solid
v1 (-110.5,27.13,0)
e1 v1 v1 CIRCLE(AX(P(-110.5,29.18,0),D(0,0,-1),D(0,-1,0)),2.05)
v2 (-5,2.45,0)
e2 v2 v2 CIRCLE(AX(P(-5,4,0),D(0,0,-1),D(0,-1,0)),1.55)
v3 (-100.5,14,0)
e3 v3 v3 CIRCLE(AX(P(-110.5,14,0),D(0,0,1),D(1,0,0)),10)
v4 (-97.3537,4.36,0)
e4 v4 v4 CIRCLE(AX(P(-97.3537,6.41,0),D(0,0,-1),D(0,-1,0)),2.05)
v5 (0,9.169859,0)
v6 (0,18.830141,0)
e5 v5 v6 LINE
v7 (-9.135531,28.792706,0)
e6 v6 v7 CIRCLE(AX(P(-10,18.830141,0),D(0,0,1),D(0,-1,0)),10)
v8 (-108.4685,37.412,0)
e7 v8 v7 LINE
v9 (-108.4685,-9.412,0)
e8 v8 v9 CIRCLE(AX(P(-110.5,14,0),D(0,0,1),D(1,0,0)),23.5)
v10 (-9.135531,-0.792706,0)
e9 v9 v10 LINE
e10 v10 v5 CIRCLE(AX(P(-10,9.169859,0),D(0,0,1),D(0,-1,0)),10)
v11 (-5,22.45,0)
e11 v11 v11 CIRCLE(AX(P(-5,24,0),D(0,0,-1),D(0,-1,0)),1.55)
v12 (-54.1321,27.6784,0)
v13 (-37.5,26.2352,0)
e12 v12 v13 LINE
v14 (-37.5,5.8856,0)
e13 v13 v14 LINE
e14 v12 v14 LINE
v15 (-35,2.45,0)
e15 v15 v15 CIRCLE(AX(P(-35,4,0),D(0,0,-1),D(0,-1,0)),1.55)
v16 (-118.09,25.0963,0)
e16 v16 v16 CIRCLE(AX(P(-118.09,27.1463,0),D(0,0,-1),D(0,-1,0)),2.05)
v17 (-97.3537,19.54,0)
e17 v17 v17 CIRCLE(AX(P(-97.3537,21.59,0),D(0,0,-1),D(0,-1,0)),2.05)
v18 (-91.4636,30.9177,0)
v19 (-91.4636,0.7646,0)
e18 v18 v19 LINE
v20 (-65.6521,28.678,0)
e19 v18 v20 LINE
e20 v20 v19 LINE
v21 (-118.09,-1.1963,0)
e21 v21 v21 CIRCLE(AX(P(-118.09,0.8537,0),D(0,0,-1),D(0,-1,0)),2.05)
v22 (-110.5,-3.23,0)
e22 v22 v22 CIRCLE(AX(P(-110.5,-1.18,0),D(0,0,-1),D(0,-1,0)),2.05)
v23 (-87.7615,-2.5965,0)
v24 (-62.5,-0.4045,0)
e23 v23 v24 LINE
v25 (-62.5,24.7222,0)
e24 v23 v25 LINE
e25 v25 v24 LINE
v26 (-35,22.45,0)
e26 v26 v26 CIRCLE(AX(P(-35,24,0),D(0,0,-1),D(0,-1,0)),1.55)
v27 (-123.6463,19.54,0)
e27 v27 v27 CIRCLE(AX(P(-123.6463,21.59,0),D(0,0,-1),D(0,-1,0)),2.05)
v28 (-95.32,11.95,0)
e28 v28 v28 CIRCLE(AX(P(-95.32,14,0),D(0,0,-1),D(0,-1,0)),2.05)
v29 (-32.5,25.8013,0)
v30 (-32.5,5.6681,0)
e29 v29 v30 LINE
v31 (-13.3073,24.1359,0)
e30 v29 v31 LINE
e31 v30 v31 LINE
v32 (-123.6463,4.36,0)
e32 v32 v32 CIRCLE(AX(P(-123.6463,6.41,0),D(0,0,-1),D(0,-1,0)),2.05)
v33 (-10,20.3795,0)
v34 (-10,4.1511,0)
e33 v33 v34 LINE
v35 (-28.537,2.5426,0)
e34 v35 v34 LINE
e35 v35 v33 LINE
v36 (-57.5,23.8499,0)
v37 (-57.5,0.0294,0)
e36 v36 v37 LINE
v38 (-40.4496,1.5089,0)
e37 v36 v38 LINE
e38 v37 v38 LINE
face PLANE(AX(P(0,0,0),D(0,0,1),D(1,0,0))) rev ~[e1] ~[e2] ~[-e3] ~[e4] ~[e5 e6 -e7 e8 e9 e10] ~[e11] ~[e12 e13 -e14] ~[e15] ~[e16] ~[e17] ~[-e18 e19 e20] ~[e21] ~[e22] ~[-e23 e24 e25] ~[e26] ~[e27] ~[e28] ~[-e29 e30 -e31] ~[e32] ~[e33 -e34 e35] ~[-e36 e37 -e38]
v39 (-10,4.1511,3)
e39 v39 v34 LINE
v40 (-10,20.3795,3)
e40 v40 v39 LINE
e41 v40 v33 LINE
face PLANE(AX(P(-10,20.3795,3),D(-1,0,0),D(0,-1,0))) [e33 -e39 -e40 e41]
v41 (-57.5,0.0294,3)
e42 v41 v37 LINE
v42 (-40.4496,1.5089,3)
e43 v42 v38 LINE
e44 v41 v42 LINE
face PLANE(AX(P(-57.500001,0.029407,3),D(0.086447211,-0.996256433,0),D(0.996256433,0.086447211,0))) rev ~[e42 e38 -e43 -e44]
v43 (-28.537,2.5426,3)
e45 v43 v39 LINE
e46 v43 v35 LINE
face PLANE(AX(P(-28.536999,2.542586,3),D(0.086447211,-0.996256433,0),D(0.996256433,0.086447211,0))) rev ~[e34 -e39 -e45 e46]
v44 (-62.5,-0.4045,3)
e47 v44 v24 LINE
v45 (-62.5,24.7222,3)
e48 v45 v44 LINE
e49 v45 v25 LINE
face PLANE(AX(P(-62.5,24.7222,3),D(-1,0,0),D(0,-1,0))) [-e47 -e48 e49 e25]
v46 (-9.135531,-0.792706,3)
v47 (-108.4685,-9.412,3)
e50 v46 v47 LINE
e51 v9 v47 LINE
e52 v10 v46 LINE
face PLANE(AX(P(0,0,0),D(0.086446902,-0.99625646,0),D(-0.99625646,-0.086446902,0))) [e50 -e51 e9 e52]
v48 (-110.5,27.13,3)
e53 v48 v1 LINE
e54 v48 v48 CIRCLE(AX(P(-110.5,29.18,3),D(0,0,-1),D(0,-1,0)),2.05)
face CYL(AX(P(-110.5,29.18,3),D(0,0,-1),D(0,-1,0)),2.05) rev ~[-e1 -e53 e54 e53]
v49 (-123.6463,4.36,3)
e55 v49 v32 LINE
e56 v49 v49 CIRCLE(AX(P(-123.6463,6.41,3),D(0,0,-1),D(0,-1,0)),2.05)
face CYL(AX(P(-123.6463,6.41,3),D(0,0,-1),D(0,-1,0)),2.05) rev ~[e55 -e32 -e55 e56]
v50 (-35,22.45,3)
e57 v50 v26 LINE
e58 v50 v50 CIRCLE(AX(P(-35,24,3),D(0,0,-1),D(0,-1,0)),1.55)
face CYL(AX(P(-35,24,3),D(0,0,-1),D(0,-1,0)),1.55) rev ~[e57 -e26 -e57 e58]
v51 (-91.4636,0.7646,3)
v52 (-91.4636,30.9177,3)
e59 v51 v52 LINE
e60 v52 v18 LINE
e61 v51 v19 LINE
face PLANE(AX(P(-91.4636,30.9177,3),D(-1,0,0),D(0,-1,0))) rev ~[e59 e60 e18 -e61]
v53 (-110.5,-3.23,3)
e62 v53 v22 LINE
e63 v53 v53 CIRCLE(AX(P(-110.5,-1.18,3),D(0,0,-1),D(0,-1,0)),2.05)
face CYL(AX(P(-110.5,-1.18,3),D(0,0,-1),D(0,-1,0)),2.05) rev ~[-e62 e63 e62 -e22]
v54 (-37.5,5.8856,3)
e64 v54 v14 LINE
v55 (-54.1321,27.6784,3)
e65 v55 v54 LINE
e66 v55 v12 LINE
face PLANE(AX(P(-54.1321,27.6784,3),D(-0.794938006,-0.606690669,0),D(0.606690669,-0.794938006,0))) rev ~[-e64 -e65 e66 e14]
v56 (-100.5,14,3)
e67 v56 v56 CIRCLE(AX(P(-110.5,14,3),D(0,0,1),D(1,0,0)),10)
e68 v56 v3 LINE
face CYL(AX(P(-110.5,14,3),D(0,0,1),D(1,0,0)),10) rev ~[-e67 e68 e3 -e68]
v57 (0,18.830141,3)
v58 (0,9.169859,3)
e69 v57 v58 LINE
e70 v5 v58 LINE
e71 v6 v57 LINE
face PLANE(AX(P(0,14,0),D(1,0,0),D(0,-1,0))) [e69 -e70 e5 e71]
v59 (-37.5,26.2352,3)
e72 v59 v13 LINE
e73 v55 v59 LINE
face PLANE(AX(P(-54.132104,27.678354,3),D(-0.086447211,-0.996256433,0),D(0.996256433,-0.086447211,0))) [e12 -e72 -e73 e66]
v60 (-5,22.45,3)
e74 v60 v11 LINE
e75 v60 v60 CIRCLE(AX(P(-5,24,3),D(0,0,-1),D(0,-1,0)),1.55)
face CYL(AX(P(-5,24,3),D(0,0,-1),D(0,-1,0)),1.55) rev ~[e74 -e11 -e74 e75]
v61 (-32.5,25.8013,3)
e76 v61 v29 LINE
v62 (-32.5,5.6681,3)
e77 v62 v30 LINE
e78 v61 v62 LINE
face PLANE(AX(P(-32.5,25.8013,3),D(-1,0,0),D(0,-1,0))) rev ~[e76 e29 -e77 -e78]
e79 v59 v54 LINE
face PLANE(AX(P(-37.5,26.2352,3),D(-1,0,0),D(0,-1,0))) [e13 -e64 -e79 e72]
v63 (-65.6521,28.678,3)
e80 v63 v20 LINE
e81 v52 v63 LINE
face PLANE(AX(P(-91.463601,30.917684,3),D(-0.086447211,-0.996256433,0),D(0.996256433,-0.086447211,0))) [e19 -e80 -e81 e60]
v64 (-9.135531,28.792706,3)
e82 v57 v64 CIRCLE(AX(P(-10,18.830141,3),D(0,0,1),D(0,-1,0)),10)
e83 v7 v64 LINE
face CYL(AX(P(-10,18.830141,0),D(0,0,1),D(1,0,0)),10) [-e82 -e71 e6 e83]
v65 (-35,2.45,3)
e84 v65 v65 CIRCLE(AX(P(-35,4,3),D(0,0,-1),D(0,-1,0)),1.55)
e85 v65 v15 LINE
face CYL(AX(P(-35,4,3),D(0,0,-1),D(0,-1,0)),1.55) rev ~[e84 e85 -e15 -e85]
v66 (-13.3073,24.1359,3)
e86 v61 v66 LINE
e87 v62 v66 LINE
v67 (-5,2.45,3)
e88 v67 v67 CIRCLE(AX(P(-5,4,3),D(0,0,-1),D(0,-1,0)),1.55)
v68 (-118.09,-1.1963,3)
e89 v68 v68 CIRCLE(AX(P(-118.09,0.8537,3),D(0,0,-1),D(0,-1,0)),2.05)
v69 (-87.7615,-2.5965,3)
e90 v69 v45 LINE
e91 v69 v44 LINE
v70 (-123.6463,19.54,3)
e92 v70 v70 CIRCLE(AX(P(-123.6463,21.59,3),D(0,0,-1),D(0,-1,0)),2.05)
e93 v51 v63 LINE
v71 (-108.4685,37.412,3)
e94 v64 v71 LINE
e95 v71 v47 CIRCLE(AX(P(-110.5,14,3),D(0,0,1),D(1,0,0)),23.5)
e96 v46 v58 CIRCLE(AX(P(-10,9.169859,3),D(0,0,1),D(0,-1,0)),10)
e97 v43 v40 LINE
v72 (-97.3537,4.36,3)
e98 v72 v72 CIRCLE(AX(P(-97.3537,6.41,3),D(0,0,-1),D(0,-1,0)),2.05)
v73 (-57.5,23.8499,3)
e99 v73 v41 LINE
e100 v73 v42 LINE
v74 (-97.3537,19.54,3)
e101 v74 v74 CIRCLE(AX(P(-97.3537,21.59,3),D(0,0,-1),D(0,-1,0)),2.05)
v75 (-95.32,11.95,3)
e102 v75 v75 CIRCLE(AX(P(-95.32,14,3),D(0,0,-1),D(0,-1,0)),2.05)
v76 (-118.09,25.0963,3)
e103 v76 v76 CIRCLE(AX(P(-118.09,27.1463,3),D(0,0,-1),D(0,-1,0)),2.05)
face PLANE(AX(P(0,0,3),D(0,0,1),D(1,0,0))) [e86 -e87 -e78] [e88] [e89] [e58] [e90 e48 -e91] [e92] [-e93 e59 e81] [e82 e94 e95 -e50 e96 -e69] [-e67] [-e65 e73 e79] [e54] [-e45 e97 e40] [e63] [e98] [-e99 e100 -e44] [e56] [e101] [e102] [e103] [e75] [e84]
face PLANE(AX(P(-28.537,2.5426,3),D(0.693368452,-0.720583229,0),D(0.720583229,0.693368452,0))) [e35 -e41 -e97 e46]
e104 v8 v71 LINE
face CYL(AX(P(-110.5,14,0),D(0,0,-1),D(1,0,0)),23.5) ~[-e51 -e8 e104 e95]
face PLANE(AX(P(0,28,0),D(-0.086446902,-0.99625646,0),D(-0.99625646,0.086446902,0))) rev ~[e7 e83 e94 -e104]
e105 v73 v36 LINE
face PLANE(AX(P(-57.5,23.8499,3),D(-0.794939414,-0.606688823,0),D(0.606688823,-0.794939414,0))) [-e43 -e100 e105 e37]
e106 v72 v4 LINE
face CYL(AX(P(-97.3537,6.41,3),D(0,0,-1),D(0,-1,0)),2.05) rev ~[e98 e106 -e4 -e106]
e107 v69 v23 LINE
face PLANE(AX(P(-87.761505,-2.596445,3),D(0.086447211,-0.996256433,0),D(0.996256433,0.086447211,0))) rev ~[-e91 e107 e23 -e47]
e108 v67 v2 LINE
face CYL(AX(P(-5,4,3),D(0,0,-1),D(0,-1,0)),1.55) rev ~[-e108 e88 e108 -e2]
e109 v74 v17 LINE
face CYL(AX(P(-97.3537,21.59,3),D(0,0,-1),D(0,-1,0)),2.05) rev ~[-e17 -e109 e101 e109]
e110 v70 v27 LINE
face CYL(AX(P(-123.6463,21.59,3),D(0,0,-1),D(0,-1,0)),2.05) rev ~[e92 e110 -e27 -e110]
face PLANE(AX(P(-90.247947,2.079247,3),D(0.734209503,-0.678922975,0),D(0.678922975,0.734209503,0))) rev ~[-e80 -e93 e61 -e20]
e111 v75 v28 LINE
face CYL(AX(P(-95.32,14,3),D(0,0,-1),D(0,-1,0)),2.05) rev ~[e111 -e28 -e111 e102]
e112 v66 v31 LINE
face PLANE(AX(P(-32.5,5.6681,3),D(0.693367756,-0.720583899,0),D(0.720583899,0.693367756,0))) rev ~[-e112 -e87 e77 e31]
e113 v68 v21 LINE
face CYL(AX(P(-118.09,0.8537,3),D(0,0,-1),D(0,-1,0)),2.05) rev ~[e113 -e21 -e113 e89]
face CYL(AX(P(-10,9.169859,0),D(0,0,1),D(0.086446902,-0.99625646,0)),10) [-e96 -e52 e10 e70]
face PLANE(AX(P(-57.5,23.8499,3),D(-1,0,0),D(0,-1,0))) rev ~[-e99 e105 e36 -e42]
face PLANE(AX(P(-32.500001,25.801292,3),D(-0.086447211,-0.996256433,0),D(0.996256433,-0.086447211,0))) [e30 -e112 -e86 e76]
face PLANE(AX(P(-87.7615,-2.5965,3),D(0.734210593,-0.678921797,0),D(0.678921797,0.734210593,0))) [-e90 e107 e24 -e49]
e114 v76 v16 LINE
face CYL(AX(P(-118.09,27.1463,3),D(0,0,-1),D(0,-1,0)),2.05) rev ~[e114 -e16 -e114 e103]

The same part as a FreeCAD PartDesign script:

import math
import FreeCAD as App
import Part
import Sketcher
Q = App.Units.Quantity


def edges_at(feature, points):
    """Names of the edges that pass closest to the given points."""
    edges = feature.Shape.Edges
    near = lambda p: min(range(len(edges)), key=lambda i: edges[i].distToShape(Part.Vertex(*p))[0])
    return sorted({f"Edge{near(p) + 1}" for p in points})


def add_polygon(sketch, points):
    """Adds a closed chain of lines whose ends are joined by coincident constraints."""
    first, n = sketch.GeometryCount, len(points)
    for a, b in zip(points, points[1:] + points[:1]):
        sketch.addGeometry(Part.LineSegment(App.Vector(*a, 0), App.Vector(*b, 0)), False)
    for i in range(n):
        sketch.addConstraint(Sketcher.Constraint("Coincident", first + i, 2, first + (i + 1) % n, 1))

doc = App.newDocument("Part")
params = doc.addObject("Spreadsheet::Sheet", "Params")
for row, (alias, value) in enumerate([
    ("sketch1_radius", "23.5 mm"),
    ("sketch1_height", "28 mm"),
    ("pad1_length", "3 mm"),
    ("sketch2_diameter", "3.1 mm"),
    ("hole_diameter", "3.1 mm"),
    ("sketch3_diameter", "4.1 mm"),
    ("hole2_diameter", "4.1 mm"),
    ("pocket1_length", "3 mm"),
    ("fillet_radius", "10 mm"),
    ("sketch5_diameter", "20 mm"),
    ("pocket2_length", "3 mm"),
], start=1):
    params.set(f"A{row}", alias)
    params.set(f"B{row}", "=" + value)
    params.setAlias(f"B{row}", alias)

body = doc.addObject("PartDesign::Body", "Body")

# Sketch on XY plane
sketch1 = doc.addObject("Sketcher::SketchObject", "Sketch")
body.addObject(sketch1)
sketch1.AttachmentSupport = (doc.XY_Plane, [""])
sketch1.MapMode = "FlatFace"
sketch1.addGeometry([
    Part.LineSegment(App.Vector(0, 0, 0), App.Vector(0, 28, 0)),
    Part.LineSegment(App.Vector(0, 28, 0), App.Vector(-108, 37, 0)),
    Part.ArcOfCircle(Part.Circle(App.Vector(-110, 14, 0), App.Vector(0, 0, 1), 24), math.radians(85), math.radians(275)),
    Part.LineSegment(App.Vector(-108, -9, 0), App.Vector(0, 0, 0)),
], False)
sketch1.addConstraint([
    Sketcher.Constraint("Coincident", 0, 2, 1, 1),
    Sketcher.Constraint("Tangent", 1, 2, 2, 1),
    Sketcher.Constraint("Tangent", 2, 2, 3, 1),
    Sketcher.Constraint("Coincident", 3, 2, 0, 1),
    Sketcher.Constraint("Vertical", 0),
    Sketcher.Constraint("Coincident", 3, 2, -1, 1),
    Sketcher.Constraint("Vertical", 1, 2, 2, 2),
    Sketcher.Constraint("Radius", 2, 23.5),
    Sketcher.Constraint("DistanceY", 0, 1, 0, 2, 28.0),
    Sketcher.Constraint("DistanceX", 2, 3, -1, 1, 110.5),
])
sketch1.setExpression("Constraints[7]", "Params.sketch1_radius")
sketch1.setExpression("Constraints[8]", "Params.sketch1_height")
pad1 = doc.addObject("PartDesign::Pad", "Pad")
body.addObject(pad1)
pad1.Profile = sketch1
pad1.setExpression("Length", "Params.pad1_length")

# Sketch on XY plane
sketch2 = doc.addObject("Sketcher::SketchObject", "Sketch001")
body.addObject(sketch2)
sketch2.AttachmentSupport = (doc.XY_Plane, [""])
sketch2.MapMode = "FlatFace"
sketch2.AttachmentOffset = App.Placement(App.Vector(0, 0, 3), App.Rotation())
sketch2.addGeometry([
    Part.Circle(App.Vector(-35, 24, 0), App.Vector(0, 0, 1), 1.6),
    Part.Circle(App.Vector(-5, 24, 0), App.Vector(0, 0, 1), 1.6),
    Part.Circle(App.Vector(-35, 4, 0), App.Vector(0, 0, 1), 1.6),
    Part.Circle(App.Vector(-5, 4, 0), App.Vector(0, 0, 1), 1.6),
], False)
sketch2.addConstraint([
    Sketcher.Constraint("Equal", 0, 1),
    Sketcher.Constraint("Equal", 1, 2),
    Sketcher.Constraint("Equal", 2, 3),
    Sketcher.Constraint("Horizontal", 0, 3, 1, 3),
    Sketcher.Constraint("Horizontal", 2, 3, 3, 3),
    Sketcher.Constraint("Vertical", 0, 3, 2, 3),
    Sketcher.Constraint("Vertical", 1, 3, 3, 3),
    Sketcher.Constraint("Diameter", 0, 3.1),
    Sketcher.Constraint("DistanceX", 0, 3, -1, 1, 35.0),
    Sketcher.Constraint("DistanceY", -1, 1, 0, 3, 24.0),
    Sketcher.Constraint("DistanceX", 1, 3, -1, 1, 5.0),
    Sketcher.Constraint("DistanceY", -1, 1, 2, 3, 4.0),
])
sketch2.setExpression("Constraints[7]", "Params.sketch2_diameter")
doc.recompute()
hole = doc.addObject("PartDesign::Hole", "Hole")
body.addObject(hole)
hole.Profile = sketch2
hole.ThreadType = "None"
hole.setExpression("Diameter", "Params.hole_diameter")
hole.DepthType = "ThroughAll"

# Sketch on XY plane
sketch3 = doc.addObject("Sketcher::SketchObject", "Sketch002")
body.addObject(sketch3)
sketch3.AttachmentSupport = (doc.XY_Plane, [""])
sketch3.MapMode = "FlatFace"
sketch3.AttachmentOffset = App.Placement(App.Vector(0, 0, 3), App.Rotation())
sketch3.addGeometry([
    Part.Circle(App.Vector(-123.6, 21.6, 0), App.Vector(0, 0, 1), 2),  # 0
    Part.Circle(App.Vector(-123.6, 6.4, 0), App.Vector(0, 0, 1), 2),  # 1
    Part.Circle(App.Vector(-110.5, -1.2, 0), App.Vector(0, 0, 1), 2),  # 2
    Part.Circle(App.Vector(-97.4, 6.4, 0), App.Vector(0, 0, 1), 2),  # 3
    Part.Circle(App.Vector(-97.4, 21.6, 0), App.Vector(0, 0, 1), 2),  # 4
    Part.Circle(App.Vector(-110.5, 29.2, 0), App.Vector(0, 0, 1), 2),  # 5
    Part.Circle(App.Vector(-118.1, 27.1, 0), App.Vector(0, 0, 1), 2),  # 6
    Part.Circle(App.Vector(-118.1, 0.9, 0), App.Vector(0, 0, 1), 2),  # 7
    Part.Circle(App.Vector(-95.3, 14, 0), App.Vector(0, 0, 1), 2),  # 8
], False)
sketch3.addConstraint([
    Sketcher.Constraint("Equal", 0, 1),
    Sketcher.Constraint("Equal", 1, 2),
    Sketcher.Constraint("Equal", 2, 3),
    Sketcher.Constraint("Equal", 3, 4),
    Sketcher.Constraint("Equal", 4, 5),
    Sketcher.Constraint("Equal", 5, 6),
    Sketcher.Constraint("Equal", 6, 7),
    Sketcher.Constraint("Equal", 7, 8),
    Sketcher.Constraint("Horizontal", 1, 3, 3, 3),
    Sketcher.Constraint("Horizontal", 0, 3, 4, 3),
    Sketcher.Constraint("Vertical", 0, 3, 1, 3),
    Sketcher.Constraint("Vertical", 3, 3, 4, 3),
    Sketcher.Constraint("Vertical", 2, 3, 5, 3),
    Sketcher.Constraint("Vertical", 6, 3, 7, 3),
    Sketcher.Constraint("Diameter", 0, 4.1),
    Sketcher.Constraint("DistanceY", -1, 1, 8, 3, 14.0),
    Sketcher.Constraint("DistanceX", 2, 3, -1, 1, 110.5),
    Sketcher.Constraint("DistanceY", -1, 1, 0, 3, 21.59),
    Sketcher.Constraint("DistanceY", -1, 1, 1, 3, 6.41),
    Sketcher.Constraint("DistanceY", 2, 3, -1, 1, 1.18),
    Sketcher.Constraint("DistanceY", -1, 1, 5, 3, 29.18),
    Sketcher.Constraint("DistanceX", 6, 3, -1, 1, 118.09),
    Sketcher.Constraint("DistanceX", 8, 3, -1, 1, 95.32),
    Sketcher.Constraint("DistanceX", 0, 3, -1, 1, 123.6463),
    Sketcher.Constraint("DistanceX", 3, 3, -1, 1, 97.3537),
    Sketcher.Constraint("DistanceY", -1, 1, 6, 3, 27.1463),
    Sketcher.Constraint("DistanceY", -1, 1, 7, 3, 0.8537),
])
sketch3.setExpression("Constraints[14]", "Params.sketch3_diameter")
doc.recompute()
hole2 = doc.addObject("PartDesign::Hole", "Hole001")
body.addObject(hole2)
hole2.Profile = sketch3
hole2.ThreadType = "None"
hole2.setExpression("Diameter", "Params.hole2_diameter")
hole2.DepthType = "ThroughAll"

# Sketch on XY plane
sketch4 = doc.addObject("Sketcher::SketchObject", "Sketch003")
body.addObject(sketch4)
sketch4.AttachmentSupport = (doc.XY_Plane, [""])
sketch4.MapMode = "FlatFace"
sketch4.AttachmentOffset = App.Placement(App.Vector(0, 0, 3), App.Rotation())
add_polygon(sketch4, [(-91, 31), (-91, 1), (-66, 29)])  # lines 0-2
add_polygon(sketch4, [(-62, 25), (-88, -3), (-62, 0)])  # lines 3-5
add_polygon(sketch4, [(-29, 3), (-10, 4), (-10, 20)])  # lines 6-8
add_polygon(sketch4, [(-32, 6), (-13, 24), (-32, 26)])  # lines 9-11
add_polygon(sketch4, [(-58, 24), (-58, 0), (-40, 2)])  # lines 12-14
add_polygon(sketch4, [(-38, 26), (-54, 28), (-38, 6)])  # lines 15-17
sketch4.addConstraint([
    Sketcher.Constraint("Vertical", 0),
    Sketcher.Constraint("Vertical", 5),
    Sketcher.Constraint("Vertical", 7),
    Sketcher.Constraint("Vertical", 11),
    Sketcher.Constraint("Vertical", 12),
    Sketcher.Constraint("Vertical", 17),
    Sketcher.Constraint("Parallel", 1, 3),
    Sketcher.Constraint("Parallel", 4, 6),
    Sketcher.Constraint("Parallel", 8, 9),
    Sketcher.Constraint("Parallel", 2, 10),
    Sketcher.Constraint("Parallel", 6, 13),
    Sketcher.Constraint("Parallel", 10, 15),
    Sketcher.Constraint("Parallel", 14, 16),
    Sketcher.Constraint("DistanceX", 6, 2, -1, 1, 10.0),
    Sketcher.Constraint("DistanceX", 4, 2, 12, 2, 5.0),
    Sketcher.Constraint("DistanceX", 16, 2, 11, 2, 5.0),
    Sketcher.Constraint("DistanceX", 12, 2, 16, 2, 20.0),
    Sketcher.Constraint("DistanceX", 4, 2, -1, 1, 62.5),
    Sketcher.Constraint("Angle", 1, Q("47.2405 deg")),
    Sketcher.Constraint("Angle", 2, Q("175.0407 deg")),
    Sketcher.Constraint("Angle", 4, Q("4.9593 deg")),
    Sketcher.Constraint("Angle", 14, Q("127.3505 deg")),
    Sketcher.Constraint("DistanceY", 0, 2, 0, 1, 30.153),
    Sketcher.Constraint("DistanceY", -1, 1, 14, 2, 23.85),
    Sketcher.Constraint("DistanceX", 1, 2, 15, 2, 11.52),
    Sketcher.Constraint("Distance", 8, 25.725),
    Sketcher.Constraint("Distance", 9, 26.635),
    Sketcher.Constraint("Distance", 14, 28.104),
    Sketcher.Constraint("DistanceY", 5, 1, 5, 2, 25.1267),
    Sketcher.Constraint("DistanceY", 7, 1, 7, 2, 16.2284),
    Sketcher.Constraint("DistanceY", 17, 1, 17, 2, 20.3496),
    Sketcher.Constraint("DistanceY", -1, 1, 1, 2, 28.678),
    Sketcher.Constraint("DistanceY", -1, 1, 6, 2, 4.151),
    Sketcher.Constraint("DistanceY", -1, 1, 9, 2, 24.136),
    Sketcher.Constraint("DistanceY", 3, 2, 0, 2, 3.361),
    Sketcher.Constraint("DistanceY", 10, 2, 15, 2, 1.877),
])
pocket1 = doc.addObject("PartDesign::Pocket", "Pocket")
body.addObject(pocket1)
pocket1.Profile = sketch4
pocket1.setExpression("Length", "Params.pocket1_length")
doc.recompute()

fillet = doc.addObject("PartDesign::Fillet", "Fillet")
body.addObject(fillet)
fillet.Base = (pocket1, edges_at(pocket1, [(0, 28, 1.5), (0, 0, 1.5)]))
fillet.setExpression("Radius", "Params.fillet_radius")

# Sketch on XY plane
sketch5 = doc.addObject("Sketcher::SketchObject", "Sketch004")
body.addObject(sketch5)
sketch5.AttachmentSupport = (doc.XY_Plane, [""])
sketch5.MapMode = "FlatFace"
sketch5.AttachmentOffset = App.Placement(App.Vector(0, 0, 3), App.Rotation())
sketch5.addGeometry(Part.Circle(App.Vector(-110, 14, 0), App.Vector(0, 0, 1), 10), False)
sketch5.addConstraint([
    Sketcher.Constraint("Diameter", 0, 20.0),
    Sketcher.Constraint("DistanceY", -1, 1, 0, 3, 14.0),
    Sketcher.Constraint("DistanceX", 0, 3, -1, 1, 110.5),
])
sketch5.setExpression("Constraints[0]", "Params.sketch5_diameter")
pocket2 = doc.addObject("PartDesign::Pocket", "Pocket001")
body.addObject(pocket2)
pocket2.Profile = sketch5
pocket2.setExpression("Length", "Params.pocket2_length")

doc.recompute()
